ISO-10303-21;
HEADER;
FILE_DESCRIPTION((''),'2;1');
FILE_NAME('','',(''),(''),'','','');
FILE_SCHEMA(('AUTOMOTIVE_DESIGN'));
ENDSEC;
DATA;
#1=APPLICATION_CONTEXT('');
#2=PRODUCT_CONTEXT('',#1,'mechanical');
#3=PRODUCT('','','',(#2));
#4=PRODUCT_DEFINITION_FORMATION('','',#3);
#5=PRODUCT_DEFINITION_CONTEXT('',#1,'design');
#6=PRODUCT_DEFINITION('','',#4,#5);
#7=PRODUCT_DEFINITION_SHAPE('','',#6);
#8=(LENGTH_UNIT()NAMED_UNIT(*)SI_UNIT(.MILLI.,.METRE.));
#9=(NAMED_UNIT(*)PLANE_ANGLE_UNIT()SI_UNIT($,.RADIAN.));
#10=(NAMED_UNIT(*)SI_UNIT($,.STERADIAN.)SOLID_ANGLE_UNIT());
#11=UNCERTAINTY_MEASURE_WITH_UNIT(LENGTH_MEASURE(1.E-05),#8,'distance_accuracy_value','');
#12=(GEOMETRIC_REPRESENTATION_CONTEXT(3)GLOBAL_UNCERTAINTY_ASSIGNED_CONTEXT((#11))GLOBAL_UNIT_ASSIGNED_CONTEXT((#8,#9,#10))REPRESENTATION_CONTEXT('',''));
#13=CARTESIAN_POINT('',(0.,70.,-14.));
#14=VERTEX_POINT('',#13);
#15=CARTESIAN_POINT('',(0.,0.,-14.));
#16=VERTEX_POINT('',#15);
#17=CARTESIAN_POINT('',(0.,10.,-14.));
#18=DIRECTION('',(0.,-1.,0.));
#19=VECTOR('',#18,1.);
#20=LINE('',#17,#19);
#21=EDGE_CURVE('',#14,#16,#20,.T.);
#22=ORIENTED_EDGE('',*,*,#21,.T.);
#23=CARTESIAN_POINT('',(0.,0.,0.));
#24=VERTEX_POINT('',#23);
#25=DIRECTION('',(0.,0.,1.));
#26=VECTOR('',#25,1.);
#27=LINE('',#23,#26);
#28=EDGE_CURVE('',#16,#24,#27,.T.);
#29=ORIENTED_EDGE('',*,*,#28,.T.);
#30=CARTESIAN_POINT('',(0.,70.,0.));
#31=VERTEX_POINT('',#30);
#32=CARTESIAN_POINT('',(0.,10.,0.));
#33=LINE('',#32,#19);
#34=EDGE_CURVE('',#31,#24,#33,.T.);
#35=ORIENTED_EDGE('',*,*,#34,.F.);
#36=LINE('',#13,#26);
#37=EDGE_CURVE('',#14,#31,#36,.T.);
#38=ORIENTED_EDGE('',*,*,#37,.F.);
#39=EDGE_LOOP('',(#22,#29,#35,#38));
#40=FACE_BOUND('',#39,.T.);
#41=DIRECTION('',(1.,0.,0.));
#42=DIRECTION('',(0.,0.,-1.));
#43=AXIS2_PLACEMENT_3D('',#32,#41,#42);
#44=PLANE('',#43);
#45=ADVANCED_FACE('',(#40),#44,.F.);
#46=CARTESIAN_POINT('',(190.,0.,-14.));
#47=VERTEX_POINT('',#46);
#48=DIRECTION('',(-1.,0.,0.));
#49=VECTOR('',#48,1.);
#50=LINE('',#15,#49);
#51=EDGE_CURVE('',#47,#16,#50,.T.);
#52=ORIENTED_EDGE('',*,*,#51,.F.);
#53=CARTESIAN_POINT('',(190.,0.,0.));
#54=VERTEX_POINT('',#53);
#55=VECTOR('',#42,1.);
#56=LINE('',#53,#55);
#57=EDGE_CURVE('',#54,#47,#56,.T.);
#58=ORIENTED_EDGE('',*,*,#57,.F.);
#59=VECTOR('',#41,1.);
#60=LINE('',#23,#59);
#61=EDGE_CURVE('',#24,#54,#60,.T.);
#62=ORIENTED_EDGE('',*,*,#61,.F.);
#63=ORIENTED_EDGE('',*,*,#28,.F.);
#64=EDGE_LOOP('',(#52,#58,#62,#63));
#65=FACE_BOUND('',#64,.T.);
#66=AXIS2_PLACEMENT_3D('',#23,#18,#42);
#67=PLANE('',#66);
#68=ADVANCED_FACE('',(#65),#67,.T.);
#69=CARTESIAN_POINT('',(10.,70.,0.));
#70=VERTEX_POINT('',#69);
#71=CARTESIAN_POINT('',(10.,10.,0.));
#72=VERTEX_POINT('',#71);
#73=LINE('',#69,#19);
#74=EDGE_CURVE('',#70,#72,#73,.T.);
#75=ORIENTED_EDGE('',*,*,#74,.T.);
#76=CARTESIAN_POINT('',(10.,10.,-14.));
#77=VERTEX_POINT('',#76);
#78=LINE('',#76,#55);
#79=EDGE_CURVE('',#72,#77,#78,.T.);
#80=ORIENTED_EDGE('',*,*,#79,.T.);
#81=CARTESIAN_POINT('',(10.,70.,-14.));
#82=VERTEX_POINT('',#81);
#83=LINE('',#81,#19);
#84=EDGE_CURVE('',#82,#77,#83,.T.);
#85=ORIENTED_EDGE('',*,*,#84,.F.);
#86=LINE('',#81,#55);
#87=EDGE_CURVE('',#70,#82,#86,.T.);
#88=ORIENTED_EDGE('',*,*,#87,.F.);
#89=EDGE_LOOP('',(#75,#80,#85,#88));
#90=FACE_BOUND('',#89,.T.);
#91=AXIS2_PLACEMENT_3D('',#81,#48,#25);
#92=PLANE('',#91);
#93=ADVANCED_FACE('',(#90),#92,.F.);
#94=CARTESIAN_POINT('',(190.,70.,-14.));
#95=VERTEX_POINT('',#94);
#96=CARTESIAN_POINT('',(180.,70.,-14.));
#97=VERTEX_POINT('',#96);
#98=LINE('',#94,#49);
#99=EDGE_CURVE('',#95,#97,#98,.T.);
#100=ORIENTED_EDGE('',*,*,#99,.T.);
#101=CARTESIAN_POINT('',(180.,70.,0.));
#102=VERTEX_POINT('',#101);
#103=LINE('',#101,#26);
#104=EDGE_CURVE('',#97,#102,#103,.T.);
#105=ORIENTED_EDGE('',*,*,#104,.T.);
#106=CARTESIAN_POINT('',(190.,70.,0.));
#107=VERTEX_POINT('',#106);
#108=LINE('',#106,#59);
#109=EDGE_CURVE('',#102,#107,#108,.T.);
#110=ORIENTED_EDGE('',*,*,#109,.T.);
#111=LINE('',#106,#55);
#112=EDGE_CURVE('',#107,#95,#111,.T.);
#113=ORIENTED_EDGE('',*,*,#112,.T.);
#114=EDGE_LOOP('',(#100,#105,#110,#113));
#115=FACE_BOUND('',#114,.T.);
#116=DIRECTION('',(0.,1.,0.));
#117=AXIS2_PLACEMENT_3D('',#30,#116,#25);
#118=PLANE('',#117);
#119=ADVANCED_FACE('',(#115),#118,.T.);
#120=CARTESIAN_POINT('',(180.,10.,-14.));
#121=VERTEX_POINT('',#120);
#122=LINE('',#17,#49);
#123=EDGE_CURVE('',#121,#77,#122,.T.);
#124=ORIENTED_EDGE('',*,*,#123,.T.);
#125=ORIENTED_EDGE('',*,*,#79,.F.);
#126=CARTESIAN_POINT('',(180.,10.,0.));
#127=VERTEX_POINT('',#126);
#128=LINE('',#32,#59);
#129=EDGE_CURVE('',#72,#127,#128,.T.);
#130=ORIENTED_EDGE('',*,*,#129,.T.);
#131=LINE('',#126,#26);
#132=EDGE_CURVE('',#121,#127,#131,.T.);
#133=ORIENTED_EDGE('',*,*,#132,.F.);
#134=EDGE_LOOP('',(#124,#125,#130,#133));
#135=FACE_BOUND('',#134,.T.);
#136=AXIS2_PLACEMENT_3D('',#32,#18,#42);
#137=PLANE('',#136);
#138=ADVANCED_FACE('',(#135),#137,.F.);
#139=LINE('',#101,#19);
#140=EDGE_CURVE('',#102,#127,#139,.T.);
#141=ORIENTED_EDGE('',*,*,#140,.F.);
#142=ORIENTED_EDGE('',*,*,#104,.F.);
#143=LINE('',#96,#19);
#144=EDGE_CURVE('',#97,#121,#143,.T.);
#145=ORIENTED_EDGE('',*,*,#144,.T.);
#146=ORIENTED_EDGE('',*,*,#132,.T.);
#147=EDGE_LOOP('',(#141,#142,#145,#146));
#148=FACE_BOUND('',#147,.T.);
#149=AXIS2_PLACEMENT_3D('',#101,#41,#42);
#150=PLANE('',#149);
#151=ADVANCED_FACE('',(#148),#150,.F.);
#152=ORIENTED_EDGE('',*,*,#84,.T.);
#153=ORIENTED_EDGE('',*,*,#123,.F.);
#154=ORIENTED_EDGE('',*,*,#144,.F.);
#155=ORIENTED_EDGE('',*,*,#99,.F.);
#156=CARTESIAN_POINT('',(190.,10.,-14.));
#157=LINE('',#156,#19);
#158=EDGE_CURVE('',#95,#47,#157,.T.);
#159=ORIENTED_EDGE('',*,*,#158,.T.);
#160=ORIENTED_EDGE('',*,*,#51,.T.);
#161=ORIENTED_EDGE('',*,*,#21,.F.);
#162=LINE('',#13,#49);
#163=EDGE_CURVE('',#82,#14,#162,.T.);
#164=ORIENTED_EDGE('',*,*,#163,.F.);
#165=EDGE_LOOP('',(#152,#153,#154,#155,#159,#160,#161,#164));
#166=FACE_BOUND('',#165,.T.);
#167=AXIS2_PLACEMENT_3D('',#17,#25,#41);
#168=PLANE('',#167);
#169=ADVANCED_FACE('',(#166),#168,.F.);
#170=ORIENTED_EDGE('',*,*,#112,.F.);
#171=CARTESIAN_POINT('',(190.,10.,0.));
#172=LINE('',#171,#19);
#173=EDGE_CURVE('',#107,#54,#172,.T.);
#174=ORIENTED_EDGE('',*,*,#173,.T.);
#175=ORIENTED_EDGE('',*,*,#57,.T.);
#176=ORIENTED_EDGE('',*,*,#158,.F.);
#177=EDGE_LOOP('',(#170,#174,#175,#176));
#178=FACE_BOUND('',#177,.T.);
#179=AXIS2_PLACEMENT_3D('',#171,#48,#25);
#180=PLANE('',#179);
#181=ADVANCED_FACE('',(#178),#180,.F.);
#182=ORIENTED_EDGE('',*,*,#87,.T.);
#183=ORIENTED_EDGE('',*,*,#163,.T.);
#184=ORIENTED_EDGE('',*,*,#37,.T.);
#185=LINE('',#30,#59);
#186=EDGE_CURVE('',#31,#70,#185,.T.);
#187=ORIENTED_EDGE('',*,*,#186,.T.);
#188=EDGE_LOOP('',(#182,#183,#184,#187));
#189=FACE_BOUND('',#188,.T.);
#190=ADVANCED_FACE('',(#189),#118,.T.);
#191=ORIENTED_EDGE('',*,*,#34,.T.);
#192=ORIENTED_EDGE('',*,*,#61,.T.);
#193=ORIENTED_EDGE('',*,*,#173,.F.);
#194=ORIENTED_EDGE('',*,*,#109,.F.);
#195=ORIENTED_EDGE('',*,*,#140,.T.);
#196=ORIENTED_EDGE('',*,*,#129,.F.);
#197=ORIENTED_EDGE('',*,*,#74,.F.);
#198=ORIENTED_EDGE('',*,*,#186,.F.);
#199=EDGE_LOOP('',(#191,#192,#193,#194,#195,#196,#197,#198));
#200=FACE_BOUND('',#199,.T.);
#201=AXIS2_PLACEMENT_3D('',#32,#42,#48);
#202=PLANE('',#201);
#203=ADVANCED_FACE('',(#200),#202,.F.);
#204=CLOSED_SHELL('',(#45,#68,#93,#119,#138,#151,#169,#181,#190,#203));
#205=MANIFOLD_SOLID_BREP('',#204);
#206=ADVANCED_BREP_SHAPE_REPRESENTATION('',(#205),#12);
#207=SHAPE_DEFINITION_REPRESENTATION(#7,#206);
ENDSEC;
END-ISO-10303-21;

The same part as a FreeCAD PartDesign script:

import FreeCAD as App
import Part
import Sketcher

V = App.Vector


def add_polygon(sketch, points):
    """Adds a closed chain of lines whose ends are joined by coincident constraints."""
    first, n = sketch.GeometryCount, len(points)
    for a, b in zip(points, points[1:] + points[:1]):
        sketch.addGeometry(Part.LineSegment(App.Vector(*a, 0), App.Vector(*b, 0)), False)
    for i in range(n):
        sketch.addConstraint(Sketcher.Constraint("Coincident", first + i, 2, first + (i + 1) % n, 1))

doc = App.newDocument("Part")
body = doc.addObject("PartDesign::Body", "Body")

sketch1 = body.newObject("Sketcher::SketchObject", "Sketch")
sketch1.AttachmentSupport = (doc.getObject("XZ_Plane"), [""])
sketch1.MapMode = "FlatFace"
add_polygon(sketch1, [(0, -14), (0, 0), (190, 0), (190, -14)])
sketch1.addConstraint(Sketcher.Constraint("Vertical", 0))
sketch1.addConstraint(Sketcher.Constraint("Horizontal", 1))
sketch1.addConstraint(Sketcher.Constraint("Vertical", 2))
sketch1.addConstraint(Sketcher.Constraint("Horizontal", 3))
sketch1.addConstraint(Sketcher.Constraint("Coincident", 0, 2, -1, 1))
sketch1.addConstraint(Sketcher.Constraint("DistanceX", 1, 1, 1, 2, 190.0))
sketch1.addConstraint(Sketcher.Constraint("DistanceY", 0, 1, 0, 2, 14.0))
pad1 = body.newObject("PartDesign::Pad", "Pad")
pad1.Profile = sketch1
pad1.Length = 10
pad1.Reversed = True

sketch2 = body.newObject("Sketcher::SketchObject", "Sketch001")
sketch2.AttachmentSupport = (doc.getObject("XZ_Plane"), [""])
sketch2.MapMode = "FlatFace"
sketch2.AttachmentOffset = App.Placement(V(0, 0, -10), App.Rotation())
add_polygon(sketch2, [(0, -14), (0, 0), (10, 0), (10, -14)])
add_polygon(sketch2, [(180, -14), (180, 0), (190, 0), (190, -14)])
sketch2.addConstraint(Sketcher.Constraint("Vertical", 0))
sketch2.addConstraint(Sketcher.Constraint("Horizontal", 1))
sketch2.addConstraint(Sketcher.Constraint("Vertical", 2))
sketch2.addConstraint(Sketcher.Constraint("Horizontal", 3))
sketch2.addConstraint(Sketcher.Constraint("Vertical", 4))
sketch2.addConstraint(Sketcher.Constraint("Horizontal", 5))
sketch2.addConstraint(Sketcher.Constraint("Vertical", 6))
sketch2.addConstraint(Sketcher.Constraint("Horizontal", 7))
sketch2.addConstraint(Sketcher.Constraint("Coincident", 0, 2, -1, 1))
sketch2.addConstraint(Sketcher.Constraint("PointOnObject", 4, 2, -1))
sketch2.addConstraint(Sketcher.Constraint("Horizontal", 3, 2, 6, 2))
sketch2.addConstraint(Sketcher.Constraint("Equal", 3, 5))
sketch2.addConstraint(Sketcher.Constraint("DistanceX", 1, 1, 1, 2, 10.0))
sketch2.addConstraint(Sketcher.Constraint("DistanceY", 0, 1, 0, 2, 14.0))
sketch2.addConstraint(Sketcher.Constraint("DistanceX", -1, 1, 4, 2, 180.0))
pad2 = body.newObject("PartDesign::Pad", "Pad001")
pad2.Profile = sketch2
pad2.Length = 60
pad2.Reversed = True

doc.recompute()
